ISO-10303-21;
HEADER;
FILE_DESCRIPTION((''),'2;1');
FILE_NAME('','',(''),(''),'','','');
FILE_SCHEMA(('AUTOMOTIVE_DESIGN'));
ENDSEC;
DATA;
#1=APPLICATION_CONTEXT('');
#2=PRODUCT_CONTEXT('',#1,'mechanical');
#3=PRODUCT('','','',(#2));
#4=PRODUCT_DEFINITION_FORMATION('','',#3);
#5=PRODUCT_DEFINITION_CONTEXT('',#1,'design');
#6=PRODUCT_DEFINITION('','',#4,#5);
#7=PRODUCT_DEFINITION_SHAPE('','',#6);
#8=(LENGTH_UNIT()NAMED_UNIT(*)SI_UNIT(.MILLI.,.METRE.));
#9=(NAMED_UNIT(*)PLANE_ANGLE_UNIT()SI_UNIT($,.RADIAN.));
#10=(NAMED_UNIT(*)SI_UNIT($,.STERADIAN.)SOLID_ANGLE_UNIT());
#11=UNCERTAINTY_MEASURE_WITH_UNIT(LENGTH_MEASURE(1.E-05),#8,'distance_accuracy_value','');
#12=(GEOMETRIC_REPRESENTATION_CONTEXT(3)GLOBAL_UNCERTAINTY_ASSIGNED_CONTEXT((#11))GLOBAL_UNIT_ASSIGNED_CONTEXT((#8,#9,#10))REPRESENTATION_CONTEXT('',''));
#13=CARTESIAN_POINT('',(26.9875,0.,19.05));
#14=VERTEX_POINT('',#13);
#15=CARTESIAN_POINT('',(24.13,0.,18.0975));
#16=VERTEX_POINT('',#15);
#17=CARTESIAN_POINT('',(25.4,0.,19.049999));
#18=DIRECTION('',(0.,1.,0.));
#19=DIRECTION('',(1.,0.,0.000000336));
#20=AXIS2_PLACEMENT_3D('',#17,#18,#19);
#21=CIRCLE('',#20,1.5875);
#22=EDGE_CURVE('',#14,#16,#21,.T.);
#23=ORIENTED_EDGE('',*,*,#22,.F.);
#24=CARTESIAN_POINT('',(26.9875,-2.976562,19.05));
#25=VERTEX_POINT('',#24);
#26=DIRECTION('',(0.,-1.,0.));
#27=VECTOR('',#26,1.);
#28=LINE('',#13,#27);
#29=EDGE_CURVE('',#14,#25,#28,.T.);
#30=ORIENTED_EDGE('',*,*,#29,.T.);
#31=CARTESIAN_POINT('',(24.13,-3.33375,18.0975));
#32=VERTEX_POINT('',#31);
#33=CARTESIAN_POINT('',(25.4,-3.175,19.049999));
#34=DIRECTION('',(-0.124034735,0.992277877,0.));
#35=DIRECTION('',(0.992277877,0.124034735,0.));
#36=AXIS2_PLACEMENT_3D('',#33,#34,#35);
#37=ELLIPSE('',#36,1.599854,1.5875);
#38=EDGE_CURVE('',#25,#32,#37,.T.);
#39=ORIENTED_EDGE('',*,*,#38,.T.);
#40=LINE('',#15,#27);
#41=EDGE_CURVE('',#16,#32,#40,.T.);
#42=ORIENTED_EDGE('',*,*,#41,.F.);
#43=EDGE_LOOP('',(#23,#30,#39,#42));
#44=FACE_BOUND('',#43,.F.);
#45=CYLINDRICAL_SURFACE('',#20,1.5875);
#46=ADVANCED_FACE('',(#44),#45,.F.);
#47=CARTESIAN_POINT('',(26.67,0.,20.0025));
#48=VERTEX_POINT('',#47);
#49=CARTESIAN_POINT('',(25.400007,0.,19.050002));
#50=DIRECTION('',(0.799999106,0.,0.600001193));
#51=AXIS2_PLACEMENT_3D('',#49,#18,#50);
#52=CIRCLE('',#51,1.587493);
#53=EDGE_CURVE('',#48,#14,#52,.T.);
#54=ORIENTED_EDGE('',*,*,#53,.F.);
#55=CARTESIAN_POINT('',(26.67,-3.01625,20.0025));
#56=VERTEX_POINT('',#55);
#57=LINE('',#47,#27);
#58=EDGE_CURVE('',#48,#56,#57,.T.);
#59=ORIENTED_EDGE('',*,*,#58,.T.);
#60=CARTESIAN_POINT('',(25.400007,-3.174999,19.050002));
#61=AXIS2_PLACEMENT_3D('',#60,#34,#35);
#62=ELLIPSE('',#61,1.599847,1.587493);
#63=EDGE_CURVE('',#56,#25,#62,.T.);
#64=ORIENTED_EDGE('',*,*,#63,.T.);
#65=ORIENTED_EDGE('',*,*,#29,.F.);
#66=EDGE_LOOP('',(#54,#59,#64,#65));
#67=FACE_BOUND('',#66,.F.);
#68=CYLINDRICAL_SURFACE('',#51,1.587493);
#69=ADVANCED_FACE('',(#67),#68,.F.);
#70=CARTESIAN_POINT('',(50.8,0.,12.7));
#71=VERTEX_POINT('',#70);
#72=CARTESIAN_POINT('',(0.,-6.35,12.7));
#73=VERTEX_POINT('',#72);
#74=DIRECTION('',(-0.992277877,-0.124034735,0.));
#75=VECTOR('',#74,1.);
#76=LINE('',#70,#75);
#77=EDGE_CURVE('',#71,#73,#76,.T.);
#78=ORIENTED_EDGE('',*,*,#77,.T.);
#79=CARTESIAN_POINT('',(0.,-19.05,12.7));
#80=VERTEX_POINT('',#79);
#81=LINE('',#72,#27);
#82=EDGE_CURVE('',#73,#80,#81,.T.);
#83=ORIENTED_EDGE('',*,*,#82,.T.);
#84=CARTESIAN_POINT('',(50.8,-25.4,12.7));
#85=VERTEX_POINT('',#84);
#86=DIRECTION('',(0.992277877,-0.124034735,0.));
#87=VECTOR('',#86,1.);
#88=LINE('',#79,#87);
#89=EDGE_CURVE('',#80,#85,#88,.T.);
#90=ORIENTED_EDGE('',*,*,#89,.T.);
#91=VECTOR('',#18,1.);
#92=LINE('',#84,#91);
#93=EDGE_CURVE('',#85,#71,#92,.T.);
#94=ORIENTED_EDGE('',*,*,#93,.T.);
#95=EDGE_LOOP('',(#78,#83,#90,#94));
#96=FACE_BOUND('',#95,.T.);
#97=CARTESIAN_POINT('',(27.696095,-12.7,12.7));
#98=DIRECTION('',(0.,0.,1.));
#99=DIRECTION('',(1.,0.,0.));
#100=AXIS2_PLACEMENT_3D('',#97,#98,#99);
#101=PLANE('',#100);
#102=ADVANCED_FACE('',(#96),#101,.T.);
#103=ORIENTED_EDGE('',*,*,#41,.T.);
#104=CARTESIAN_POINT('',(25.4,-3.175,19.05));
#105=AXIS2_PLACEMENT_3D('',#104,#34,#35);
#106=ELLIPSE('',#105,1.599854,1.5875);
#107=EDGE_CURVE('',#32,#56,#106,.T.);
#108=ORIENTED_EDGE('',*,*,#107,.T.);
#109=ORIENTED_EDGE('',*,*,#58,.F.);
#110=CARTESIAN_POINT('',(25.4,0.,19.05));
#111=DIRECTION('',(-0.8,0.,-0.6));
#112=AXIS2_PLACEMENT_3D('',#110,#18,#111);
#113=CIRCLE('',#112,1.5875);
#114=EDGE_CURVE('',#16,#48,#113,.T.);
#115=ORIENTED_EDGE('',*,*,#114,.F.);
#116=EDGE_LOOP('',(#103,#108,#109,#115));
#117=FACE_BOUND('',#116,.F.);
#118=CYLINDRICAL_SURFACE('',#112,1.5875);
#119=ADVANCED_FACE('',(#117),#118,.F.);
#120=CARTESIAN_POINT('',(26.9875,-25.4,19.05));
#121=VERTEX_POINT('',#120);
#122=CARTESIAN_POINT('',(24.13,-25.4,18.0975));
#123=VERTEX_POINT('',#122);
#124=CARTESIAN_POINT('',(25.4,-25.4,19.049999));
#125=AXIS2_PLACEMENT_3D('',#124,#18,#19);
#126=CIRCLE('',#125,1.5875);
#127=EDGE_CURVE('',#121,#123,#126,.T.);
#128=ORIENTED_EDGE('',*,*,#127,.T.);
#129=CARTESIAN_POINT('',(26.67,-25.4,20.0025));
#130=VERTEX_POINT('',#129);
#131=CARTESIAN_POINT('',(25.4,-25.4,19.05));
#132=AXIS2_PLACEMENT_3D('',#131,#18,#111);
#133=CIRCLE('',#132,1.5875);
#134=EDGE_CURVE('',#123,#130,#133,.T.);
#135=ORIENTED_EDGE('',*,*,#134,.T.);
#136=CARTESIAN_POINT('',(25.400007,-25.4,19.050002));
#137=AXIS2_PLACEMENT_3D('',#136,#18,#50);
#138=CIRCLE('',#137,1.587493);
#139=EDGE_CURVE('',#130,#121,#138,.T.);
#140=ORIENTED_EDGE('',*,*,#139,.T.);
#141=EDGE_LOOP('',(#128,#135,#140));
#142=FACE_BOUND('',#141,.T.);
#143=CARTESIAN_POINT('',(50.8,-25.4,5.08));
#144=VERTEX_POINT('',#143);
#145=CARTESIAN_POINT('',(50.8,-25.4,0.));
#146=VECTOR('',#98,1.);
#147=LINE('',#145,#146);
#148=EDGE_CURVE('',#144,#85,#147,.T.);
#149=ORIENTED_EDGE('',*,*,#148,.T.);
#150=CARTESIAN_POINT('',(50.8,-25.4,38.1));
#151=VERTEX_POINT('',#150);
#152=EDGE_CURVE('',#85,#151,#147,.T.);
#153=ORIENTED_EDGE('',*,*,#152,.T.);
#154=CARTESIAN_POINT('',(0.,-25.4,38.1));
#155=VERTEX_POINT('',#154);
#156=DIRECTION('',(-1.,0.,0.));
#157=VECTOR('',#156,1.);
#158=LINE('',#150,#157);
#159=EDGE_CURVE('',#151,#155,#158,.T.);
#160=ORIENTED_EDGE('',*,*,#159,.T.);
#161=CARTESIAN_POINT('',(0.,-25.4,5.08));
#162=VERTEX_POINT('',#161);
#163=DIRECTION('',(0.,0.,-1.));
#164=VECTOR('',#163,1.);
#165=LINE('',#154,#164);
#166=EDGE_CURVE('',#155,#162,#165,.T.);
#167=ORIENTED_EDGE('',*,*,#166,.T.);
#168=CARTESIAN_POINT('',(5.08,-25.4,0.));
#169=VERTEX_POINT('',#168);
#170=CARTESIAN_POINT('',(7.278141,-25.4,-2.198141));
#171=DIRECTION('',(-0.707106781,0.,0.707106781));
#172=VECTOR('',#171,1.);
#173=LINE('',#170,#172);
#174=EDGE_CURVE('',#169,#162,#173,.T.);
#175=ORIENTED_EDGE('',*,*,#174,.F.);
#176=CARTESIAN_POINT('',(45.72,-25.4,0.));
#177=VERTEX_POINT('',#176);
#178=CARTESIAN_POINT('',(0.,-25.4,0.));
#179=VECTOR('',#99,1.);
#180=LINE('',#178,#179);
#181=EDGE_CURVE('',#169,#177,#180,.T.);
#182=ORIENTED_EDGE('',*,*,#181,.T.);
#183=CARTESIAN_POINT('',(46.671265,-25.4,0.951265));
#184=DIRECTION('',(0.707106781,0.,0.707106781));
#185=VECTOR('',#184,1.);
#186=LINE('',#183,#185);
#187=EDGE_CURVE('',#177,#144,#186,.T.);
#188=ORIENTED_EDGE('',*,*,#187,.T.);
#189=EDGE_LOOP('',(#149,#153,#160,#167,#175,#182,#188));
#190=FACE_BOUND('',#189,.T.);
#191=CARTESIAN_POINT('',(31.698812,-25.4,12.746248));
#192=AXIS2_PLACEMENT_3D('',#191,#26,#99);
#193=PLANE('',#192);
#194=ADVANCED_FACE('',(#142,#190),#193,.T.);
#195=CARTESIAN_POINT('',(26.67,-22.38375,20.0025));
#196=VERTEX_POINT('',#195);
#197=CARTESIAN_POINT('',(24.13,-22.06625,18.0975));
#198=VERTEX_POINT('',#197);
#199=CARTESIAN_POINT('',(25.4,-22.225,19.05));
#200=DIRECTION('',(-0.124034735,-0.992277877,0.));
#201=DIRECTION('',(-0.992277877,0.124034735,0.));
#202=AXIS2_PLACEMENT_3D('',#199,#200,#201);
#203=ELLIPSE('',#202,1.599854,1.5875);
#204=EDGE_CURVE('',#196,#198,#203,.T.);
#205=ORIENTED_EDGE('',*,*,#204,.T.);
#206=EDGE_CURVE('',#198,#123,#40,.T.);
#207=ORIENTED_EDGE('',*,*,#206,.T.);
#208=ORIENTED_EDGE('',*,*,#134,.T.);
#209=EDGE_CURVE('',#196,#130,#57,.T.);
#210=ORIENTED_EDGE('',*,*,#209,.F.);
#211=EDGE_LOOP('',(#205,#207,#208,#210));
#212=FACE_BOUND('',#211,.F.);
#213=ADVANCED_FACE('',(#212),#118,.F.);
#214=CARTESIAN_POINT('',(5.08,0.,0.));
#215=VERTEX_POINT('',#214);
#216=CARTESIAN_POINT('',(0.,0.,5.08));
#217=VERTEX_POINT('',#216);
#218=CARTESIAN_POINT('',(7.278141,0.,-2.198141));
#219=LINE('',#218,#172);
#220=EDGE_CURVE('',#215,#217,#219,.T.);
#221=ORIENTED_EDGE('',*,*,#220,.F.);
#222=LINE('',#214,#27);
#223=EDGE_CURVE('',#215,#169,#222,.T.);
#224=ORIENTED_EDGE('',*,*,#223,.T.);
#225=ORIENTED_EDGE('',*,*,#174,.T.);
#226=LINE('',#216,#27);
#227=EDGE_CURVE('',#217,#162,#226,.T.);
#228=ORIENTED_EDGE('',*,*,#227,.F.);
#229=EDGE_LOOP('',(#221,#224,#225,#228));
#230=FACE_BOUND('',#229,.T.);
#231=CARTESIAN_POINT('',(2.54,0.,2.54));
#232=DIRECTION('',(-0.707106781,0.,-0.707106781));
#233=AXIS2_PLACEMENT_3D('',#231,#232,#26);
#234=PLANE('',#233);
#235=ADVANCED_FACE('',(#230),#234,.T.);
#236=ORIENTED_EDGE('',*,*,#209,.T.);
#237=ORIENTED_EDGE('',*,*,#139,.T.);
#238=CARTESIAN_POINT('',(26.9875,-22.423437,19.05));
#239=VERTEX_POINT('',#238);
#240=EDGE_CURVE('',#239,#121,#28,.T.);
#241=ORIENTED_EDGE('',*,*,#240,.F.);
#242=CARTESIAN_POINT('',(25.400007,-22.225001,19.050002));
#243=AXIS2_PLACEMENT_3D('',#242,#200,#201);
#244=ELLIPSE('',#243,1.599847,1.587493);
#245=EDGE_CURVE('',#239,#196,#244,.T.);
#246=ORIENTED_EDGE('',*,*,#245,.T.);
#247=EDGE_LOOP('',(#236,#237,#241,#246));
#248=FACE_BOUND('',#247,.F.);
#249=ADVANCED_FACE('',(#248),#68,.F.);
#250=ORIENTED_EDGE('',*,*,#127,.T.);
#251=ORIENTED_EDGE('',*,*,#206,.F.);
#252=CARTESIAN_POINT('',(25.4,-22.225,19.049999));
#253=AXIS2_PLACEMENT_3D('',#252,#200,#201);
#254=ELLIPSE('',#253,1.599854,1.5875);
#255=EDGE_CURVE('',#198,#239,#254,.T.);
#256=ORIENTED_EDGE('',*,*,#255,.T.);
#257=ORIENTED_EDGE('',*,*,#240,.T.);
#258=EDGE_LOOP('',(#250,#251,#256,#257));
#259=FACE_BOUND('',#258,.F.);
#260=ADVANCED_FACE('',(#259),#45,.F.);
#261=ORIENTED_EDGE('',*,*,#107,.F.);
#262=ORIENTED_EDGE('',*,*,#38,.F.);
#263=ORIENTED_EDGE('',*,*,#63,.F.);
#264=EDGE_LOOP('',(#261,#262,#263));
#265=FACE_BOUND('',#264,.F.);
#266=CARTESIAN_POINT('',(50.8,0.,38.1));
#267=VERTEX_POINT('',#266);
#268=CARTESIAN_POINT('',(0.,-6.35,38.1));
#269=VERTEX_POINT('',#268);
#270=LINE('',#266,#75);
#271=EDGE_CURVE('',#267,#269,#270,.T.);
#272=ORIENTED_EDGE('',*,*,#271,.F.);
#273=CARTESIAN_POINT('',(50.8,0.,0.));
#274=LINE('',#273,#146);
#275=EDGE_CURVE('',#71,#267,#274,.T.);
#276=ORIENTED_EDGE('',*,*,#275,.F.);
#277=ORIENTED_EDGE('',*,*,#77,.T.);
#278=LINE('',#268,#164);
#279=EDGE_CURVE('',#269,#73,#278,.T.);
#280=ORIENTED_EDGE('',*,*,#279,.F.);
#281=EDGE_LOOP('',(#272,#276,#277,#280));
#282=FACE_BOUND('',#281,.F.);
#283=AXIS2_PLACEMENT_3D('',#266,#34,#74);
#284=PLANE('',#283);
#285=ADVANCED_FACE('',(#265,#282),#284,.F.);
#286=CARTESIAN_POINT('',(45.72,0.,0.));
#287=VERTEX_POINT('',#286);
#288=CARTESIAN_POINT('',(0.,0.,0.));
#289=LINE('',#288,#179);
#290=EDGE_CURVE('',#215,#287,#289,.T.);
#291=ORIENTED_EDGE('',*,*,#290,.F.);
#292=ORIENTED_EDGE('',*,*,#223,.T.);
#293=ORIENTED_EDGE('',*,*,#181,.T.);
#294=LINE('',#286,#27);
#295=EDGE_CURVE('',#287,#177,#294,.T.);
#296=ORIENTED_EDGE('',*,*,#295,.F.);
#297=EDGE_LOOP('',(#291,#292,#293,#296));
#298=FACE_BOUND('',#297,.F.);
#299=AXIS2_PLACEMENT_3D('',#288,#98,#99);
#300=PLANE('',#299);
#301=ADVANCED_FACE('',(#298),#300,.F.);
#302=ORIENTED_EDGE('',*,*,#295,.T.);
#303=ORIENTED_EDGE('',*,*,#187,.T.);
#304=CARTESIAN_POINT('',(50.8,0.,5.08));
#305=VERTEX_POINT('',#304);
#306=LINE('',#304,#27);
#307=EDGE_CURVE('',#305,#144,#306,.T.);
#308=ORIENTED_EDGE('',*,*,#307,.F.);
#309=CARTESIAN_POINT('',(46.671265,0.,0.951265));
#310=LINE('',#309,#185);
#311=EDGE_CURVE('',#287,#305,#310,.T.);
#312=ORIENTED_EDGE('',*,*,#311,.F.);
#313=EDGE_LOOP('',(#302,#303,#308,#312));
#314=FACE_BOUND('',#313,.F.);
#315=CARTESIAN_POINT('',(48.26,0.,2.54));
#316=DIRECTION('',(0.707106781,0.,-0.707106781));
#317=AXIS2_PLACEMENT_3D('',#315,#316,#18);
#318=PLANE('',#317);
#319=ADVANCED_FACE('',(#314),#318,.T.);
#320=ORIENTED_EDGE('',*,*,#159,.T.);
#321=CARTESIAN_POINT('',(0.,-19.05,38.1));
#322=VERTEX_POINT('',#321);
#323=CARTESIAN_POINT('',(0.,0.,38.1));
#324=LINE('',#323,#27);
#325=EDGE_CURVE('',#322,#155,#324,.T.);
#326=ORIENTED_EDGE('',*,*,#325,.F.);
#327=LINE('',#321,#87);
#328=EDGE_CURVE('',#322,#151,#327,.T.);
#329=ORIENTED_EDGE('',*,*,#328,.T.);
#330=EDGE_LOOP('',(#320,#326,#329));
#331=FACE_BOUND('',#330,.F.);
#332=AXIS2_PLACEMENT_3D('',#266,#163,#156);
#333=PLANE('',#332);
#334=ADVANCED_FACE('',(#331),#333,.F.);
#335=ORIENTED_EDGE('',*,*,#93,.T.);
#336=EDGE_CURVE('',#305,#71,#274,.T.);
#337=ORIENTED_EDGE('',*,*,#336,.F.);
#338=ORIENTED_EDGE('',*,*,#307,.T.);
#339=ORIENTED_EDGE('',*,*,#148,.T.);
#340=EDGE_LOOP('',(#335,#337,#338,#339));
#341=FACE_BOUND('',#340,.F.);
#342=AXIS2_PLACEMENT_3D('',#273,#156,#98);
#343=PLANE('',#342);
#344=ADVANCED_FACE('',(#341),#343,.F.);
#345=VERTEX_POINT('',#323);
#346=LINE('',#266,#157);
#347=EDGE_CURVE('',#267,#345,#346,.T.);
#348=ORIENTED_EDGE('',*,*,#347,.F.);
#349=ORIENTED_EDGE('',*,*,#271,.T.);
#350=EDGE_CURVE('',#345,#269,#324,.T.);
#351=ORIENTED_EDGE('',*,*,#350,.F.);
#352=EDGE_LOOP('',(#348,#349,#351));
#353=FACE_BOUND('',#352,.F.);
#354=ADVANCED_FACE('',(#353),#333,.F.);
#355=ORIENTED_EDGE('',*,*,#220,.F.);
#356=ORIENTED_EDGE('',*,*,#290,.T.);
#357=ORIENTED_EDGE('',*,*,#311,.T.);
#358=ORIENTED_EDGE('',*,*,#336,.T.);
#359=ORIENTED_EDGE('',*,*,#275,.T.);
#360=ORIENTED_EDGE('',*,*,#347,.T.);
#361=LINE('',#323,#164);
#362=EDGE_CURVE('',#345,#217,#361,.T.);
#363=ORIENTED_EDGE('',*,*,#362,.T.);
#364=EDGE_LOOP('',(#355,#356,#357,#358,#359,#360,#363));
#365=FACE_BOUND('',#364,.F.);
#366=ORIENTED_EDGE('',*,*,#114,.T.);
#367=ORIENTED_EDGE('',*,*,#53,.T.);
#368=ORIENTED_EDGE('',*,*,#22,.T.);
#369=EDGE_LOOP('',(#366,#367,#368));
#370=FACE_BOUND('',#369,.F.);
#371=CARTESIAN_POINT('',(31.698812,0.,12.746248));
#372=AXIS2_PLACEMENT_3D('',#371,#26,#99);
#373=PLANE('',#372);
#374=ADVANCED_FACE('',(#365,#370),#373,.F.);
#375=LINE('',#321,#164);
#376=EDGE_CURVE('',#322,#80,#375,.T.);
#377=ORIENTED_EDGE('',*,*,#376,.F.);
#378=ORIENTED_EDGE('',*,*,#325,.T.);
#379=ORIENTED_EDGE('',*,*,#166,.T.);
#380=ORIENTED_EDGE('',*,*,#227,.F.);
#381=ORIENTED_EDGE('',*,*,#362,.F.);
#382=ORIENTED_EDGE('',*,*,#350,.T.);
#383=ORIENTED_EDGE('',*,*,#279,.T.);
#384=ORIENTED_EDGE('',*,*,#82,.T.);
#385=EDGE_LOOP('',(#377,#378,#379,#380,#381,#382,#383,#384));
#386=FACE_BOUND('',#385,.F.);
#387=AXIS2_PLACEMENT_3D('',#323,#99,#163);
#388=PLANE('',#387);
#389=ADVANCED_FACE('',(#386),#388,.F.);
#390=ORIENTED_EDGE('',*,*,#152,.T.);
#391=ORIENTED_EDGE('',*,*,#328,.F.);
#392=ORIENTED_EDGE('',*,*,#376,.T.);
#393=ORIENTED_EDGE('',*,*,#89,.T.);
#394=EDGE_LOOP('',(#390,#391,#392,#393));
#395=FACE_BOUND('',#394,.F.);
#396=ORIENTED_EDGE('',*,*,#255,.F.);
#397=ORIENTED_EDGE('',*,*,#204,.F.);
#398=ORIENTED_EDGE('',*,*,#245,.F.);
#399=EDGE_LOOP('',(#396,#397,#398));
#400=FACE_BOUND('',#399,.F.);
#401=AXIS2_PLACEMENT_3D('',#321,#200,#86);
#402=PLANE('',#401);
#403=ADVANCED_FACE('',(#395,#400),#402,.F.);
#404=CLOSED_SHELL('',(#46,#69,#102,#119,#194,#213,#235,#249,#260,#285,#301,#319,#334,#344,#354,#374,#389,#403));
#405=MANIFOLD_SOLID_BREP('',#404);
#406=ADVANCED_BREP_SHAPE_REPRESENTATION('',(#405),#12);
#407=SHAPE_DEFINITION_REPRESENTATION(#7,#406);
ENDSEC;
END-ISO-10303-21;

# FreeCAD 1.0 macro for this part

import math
import FreeCAD as App
import Part
import Sketcher
from FreeCAD import Vector
Q = App.Units.Quantity


def edges_at(feature, points):
    """Names of the edges that pass closest to the given points."""
    edges = feature.Shape.Edges
    near = lambda p: min(range(len(edges)), key=lambda i: edges[i].distToShape(Part.Vertex(*p))[0])
    return sorted({f"Edge{near(p) + 1}" for p in points})


def add_polygon(sketch, points):
    """Adds a closed chain of lines whose ends are joined by coincident constraints."""
    first, n = sketch.GeometryCount, len(points)
    for a, b in zip(points, points[1:] + points[:1]):
        sketch.addGeometry(Part.LineSegment(App.Vector(*a, 0), App.Vector(*b, 0)), False)
    for i in range(n):
        sketch.addConstraint(Sketcher.Constraint("Coincident", first + i, 2, first + (i + 1) % n, 1))

doc = App.newDocument("Part")
body = doc.addObject("PartDesign::Body", "Body")

# Sketch on XZ plane
sketch1 = body.newObject("Sketcher::SketchObject", "Sketch")
sketch1.AttachmentSupport = (doc.getObject("XZ_Plane"), [""])
sketch1.MapMode = "FlatFace"
add_polygon(sketch1, [(0, 0), (50.8, 0), (50.8, 38.1), (0, 38.1)])  # lines 0-3
sketch1.addGeometry(Part.ArcOfCircle(Part.Circle(Vector(25.4, 19.1, 0), Vector(0, 0, 1), 1.6), math.radians(0), math.radians(37)), False)  # 4
sketch1.addGeometry(Part.ArcOfCircle(Part.Circle(Vector(25.4, 19, 0), Vector(0, 0, 1), 1.6), math.radians(-143), math.radians(0)), False)  # 5
sketch1.addGeometry(Part.ArcOfCircle(Part.Circle(Vector(25.4, 19.1, 0), Vector(0, 0, 1), 1.6), math.radians(37), math.radians(217)), False)  # 6
sketch1.addConstraint([
    Sketcher.Constraint("Tangent", 4, 1, 5, 2),
    Sketcher.Constraint("Tangent", 5, 1, 6, 2),
    Sketcher.Constraint("Tangent", 6, 1, 4, 2),
    Sketcher.Constraint("Horizontal", 0),
    Sketcher.Constraint("Vertical", 1),
    Sketcher.Constraint("Horizontal", 2),
    Sketcher.Constraint("Vertical", 3),
    Sketcher.Constraint("Coincident", 3, 2, -1, 1),
    Sketcher.Constraint("Horizontal", 6, 3, 4, 1),
    Sketcher.Constraint("DistanceX", 0, 1, 0, 2, Q("2 in")),
    Sketcher.Constraint("DistanceY", 1, 1, 1, 2, Q("1.5 in")),
    Sketcher.Constraint("DistanceX", -1, 1, 5, 3, Q("1 in")),
    Sketcher.Constraint("Radius", 5, Q("0.0625 in")),
    Sketcher.Constraint("DistanceX", 5, 1, 6, 1, Q("0.1 in")),
    Sketcher.Constraint("DistanceY", -1, 1, 4, 3, Q("0.7500001 in")),
    Sketcher.Constraint("DistanceX", -1, 1, 5, 1, Q("0.95 in")),
])
pad1 = body.newObject("PartDesign::Pad", "Pad")
pad1.Profile = sketch1
pad1.Length = Q("1 in")

# Sketch on XY plane
sketch2 = body.newObject("Sketcher::SketchObject", "Sketch001")
sketch2.AttachmentSupport = (doc.getObject("XY_Plane"), [""])
sketch2.MapMode = "FlatFace"
sketch2.AttachmentOffset = App.Placement(Vector(0, 0, 1.5 * 25.4), App.Rotation())
add_polygon(sketch2, [(0, -6), (0, -19), (51, -25), (51, 0)])  # lines 0-3
sketch2.addConstraint([
    Sketcher.Constraint("Vertical", 0),
    Sketcher.Constraint("Vertical", 2),
    Sketcher.Constraint("PointOnObject", 0, 2, -2),
    Sketcher.Constraint("PointOnObject", 2, 2, -1),
    Sketcher.Constraint("Equal", 1, 3),
    Sketcher.Constraint("DistanceY", 2, 1, 2, 2, Q("1 in")),
    Sketcher.Constraint("DistanceY", 0, 2, 0, 1, Q("0.5 in")),
    Sketcher.Constraint("DistanceX", -1, 1, 1, 2, Q("2 in")),
])
pocket1 = body.newObject("PartDesign::Pocket", "Pocket")
pocket1.Profile = sketch2
pocket1.Length = Q("1 in")
doc.recompute()

chamfer = body.newObject("PartDesign::Chamfer", "Chamfer")
chamfer.Base = (pocket1, edges_at(pocket1, [(50.8, -12.7, 0), (0, -12.7, 0)]))
chamfer.Size = Q("0.2 in")

doc.recompute()
